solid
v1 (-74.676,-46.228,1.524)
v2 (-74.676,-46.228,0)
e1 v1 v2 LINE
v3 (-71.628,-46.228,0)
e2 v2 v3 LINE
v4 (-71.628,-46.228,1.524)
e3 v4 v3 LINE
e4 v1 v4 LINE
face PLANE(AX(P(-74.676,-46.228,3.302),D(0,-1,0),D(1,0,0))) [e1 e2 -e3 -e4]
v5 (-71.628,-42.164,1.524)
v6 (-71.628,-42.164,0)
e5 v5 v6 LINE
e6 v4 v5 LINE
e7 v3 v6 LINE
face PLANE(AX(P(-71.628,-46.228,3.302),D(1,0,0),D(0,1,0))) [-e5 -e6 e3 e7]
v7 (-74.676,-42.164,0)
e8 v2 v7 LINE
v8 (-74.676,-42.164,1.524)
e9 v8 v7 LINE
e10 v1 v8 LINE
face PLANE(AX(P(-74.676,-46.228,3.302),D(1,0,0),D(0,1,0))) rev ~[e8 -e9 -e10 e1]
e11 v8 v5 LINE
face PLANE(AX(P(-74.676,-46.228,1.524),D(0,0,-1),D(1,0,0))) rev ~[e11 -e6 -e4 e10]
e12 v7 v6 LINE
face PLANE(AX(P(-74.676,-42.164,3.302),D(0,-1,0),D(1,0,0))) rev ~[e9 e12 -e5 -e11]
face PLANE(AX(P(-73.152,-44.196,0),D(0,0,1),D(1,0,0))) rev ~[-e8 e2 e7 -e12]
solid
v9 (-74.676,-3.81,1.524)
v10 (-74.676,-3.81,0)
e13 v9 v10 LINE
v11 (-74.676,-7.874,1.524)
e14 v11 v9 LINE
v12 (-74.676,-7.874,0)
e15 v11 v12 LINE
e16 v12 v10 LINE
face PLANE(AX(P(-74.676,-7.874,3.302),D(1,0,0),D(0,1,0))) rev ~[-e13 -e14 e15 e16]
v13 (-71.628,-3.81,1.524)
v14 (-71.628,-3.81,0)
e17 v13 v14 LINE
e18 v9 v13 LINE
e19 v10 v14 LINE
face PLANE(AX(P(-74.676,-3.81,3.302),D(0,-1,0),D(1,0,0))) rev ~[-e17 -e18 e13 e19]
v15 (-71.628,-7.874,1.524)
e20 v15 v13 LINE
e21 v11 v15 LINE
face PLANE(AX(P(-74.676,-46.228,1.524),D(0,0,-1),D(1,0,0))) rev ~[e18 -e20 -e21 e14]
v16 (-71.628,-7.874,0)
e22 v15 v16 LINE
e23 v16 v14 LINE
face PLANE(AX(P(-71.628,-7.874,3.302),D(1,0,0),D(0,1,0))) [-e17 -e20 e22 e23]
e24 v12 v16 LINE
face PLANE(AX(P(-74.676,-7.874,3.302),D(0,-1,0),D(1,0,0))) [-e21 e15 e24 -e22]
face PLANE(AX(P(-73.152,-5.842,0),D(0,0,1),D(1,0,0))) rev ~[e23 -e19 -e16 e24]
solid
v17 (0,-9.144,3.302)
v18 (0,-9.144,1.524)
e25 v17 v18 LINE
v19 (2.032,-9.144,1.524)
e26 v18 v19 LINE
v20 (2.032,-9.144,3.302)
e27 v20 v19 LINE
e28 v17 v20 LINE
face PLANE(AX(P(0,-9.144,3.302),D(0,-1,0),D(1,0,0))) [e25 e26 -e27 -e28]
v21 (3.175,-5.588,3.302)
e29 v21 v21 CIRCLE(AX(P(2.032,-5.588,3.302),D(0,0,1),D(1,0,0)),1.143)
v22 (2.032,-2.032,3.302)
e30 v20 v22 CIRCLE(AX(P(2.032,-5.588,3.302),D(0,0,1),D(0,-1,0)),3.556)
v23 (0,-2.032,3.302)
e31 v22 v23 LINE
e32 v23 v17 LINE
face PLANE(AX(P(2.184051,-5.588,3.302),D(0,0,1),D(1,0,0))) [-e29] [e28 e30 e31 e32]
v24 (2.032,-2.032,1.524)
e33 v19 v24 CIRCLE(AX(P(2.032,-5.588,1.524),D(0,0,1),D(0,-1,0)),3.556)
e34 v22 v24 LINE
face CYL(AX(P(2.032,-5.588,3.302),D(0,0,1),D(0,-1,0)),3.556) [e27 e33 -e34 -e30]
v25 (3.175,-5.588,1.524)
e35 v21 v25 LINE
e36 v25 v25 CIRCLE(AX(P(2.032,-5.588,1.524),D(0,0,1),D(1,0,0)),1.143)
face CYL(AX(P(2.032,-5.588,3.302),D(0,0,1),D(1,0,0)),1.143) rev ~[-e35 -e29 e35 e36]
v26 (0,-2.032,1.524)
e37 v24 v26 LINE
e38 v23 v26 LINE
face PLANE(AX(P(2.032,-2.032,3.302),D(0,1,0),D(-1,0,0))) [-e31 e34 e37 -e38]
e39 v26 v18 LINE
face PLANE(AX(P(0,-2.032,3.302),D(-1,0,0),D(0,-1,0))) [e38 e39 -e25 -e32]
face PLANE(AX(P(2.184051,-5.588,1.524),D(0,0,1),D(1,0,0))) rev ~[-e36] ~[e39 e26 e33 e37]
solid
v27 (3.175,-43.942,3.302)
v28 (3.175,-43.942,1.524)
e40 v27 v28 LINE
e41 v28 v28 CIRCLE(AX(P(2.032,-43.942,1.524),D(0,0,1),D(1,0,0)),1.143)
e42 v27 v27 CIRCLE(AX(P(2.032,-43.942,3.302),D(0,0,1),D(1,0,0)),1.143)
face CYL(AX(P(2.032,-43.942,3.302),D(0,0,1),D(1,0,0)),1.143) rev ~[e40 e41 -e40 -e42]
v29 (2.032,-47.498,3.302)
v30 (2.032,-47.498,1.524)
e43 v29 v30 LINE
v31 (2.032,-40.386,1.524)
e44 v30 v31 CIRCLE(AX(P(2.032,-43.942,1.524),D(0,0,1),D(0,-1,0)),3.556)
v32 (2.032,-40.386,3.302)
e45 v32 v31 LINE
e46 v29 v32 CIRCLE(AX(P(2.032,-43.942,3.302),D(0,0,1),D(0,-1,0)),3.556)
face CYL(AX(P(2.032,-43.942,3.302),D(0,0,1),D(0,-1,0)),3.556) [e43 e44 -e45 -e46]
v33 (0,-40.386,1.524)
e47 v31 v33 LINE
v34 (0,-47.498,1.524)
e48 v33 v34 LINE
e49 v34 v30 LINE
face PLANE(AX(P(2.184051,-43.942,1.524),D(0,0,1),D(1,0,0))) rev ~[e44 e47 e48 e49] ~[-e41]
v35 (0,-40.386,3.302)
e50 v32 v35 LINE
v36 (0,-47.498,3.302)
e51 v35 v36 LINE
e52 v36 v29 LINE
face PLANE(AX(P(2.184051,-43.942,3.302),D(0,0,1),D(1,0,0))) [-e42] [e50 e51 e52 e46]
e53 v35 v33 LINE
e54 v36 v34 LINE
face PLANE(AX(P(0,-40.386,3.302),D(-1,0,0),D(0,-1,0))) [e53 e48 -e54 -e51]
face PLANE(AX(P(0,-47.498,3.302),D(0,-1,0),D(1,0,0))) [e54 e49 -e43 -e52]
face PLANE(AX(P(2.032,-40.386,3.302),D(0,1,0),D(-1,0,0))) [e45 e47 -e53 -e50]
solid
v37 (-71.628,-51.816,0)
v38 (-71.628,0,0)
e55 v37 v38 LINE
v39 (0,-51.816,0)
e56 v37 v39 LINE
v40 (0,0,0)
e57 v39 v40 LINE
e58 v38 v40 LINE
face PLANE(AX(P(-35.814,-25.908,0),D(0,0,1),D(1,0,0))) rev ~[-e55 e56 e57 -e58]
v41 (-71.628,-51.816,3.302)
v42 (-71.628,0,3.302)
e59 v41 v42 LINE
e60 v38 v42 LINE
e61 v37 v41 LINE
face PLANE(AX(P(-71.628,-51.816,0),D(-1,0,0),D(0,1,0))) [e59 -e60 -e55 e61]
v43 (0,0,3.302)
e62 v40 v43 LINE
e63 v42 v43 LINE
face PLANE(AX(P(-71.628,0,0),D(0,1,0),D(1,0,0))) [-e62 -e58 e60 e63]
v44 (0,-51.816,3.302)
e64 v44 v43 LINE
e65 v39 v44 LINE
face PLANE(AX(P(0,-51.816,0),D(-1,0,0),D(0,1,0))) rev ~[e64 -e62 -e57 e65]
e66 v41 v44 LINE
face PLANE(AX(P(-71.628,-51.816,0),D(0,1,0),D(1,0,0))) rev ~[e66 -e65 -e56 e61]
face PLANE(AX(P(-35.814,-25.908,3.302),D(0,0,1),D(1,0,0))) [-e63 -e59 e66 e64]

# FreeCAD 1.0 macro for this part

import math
import FreeCAD as App
import Part
import Sketcher
Q = App.Units.Quantity


def add_polygon(sketch, points):
    """Adds a closed chain of lines whose ends are joined by coincident constraints."""
    first, n = sketch.GeometryCount, len(points)
    for a, b in zip(points, points[1:] + points[:1]):
        sketch.addGeometry(Part.LineSegment(App.Vector(*a, 0), App.Vector(*b, 0)), False)
    for i in range(n):
        sketch.addConstraint(Sketcher.Constraint("Coincident", first + i, 2, first + (i + 1) % n, 1))

doc = App.newDocument("Part")
body = doc.addObject("PartDesign::Body", "Body")

# Sketch on XY plane
sketch1 = body.newObject("Sketcher::SketchObject", "Sketch")
sketch1.AttachmentSupport = (doc.getObject("XY_Plane"), [""])
sketch1.MapMode = "FlatFace"
add_polygon(sketch1, [(-72, 0), (-72, -52), (0, -52), (0, 0)])  # lines 0-3
sketch1.addConstraint([
    Sketcher.Constraint("Vertical", 0),
    Sketcher.Constraint("Horizontal", 1),
    Sketcher.Constraint("Vertical", 2),
    Sketcher.Constraint("Horizontal", 3),
    Sketcher.Constraint("Coincident", 2, 2, -1, 1),
    Sketcher.Constraint("DistanceX", 1, 1, 1, 2, Q("2.82 in")),
    Sketcher.Constraint("DistanceY", 0, 2, 0, 1, Q("2.04 in")),
])
pad1 = body.newObject("PartDesign::Pad", "Pad")
pad1.Profile = sketch1
pad1.Length = Q("0.13 in")
body2 = doc.addObject("PartDesign::Body", "Body001")
body2.AllowCompound = True

# Sketch on XY plane
sketch2 = body2.newObject("Sketcher::SketchObject", "Sketch001")
sketch2.AttachmentSupport = (doc.getObject("XY_Plane001"), [""])
sketch2.MapMode = "FlatFace"
sketch2.AttachmentOffset = App.Placement(App.Vector(0, 0, 0.13 * 25.4), App.Rotation())
sketch2.addGeometry([
    Part.LineSegment(App.Vector(2, -2, 0), App.Vector(0, -2, 0)),  # 0
    Part.LineSegment(App.Vector(0, -2, 0), App.Vector(0, -9.1, 0)),  # 1
    Part.LineSegment(App.Vector(0, -9.1, 0), App.Vector(2, -9.1, 0)),  # 2
    Part.ArcOfCircle(Part.Circle(App.Vector(2, -5.6, 0), App.Vector(0, 0, 1), 3.6), math.radians(-90), math.radians(90)),  # 3
    Part.Circle(App.Vector(2, -5.6, 0), App.Vector(0, 0, 1), 1.1),  # 4
    Part.ArcOfCircle(Part.Circle(App.Vector(2, -43.9, 0), App.Vector(0, 0, 1), 3.6), math.radians(-90), math.radians(90)),  # 5
    Part.LineSegment(App.Vector(2, -40.4, 0), App.Vector(0, -40.4, 0)),  # 6
    Part.LineSegment(App.Vector(0, -40.4, 0), App.Vector(0, -47.5, 0)),  # 7
    Part.LineSegment(App.Vector(0, -47.5, 0), App.Vector(2, -47.5, 0)),  # 8
    Part.Circle(App.Vector(2, -43.9, 0), App.Vector(0, 0, 1), 1.1),  # 9
], False)
sketch2.addConstraint([
    Sketcher.Constraint("Coincident", 0, 2, 1, 1),
    Sketcher.Constraint("Coincident", 1, 2, 2, 1),
    Sketcher.Constraint("Tangent", 2, 2, 3, 1),
    Sketcher.Constraint("Tangent", 3, 2, 0, 1),
    Sketcher.Constraint("Tangent", 5, 2, 6, 1),
    Sketcher.Constraint("Coincident", 6, 2, 7, 1),
    Sketcher.Constraint("Coincident", 7, 2, 8, 1),
    Sketcher.Constraint("Tangent", 8, 2, 5, 1),
    Sketcher.Constraint("Horizontal", 0),
    Sketcher.Constraint("Vertical", 1),
    Sketcher.Constraint("Horizontal", 2),
    Sketcher.Constraint("Horizontal", 6),
    Sketcher.Constraint("Vertical", 7),
    Sketcher.Constraint("Horizontal", 8),
    Sketcher.Constraint("Coincident", 4, 3, 3, 3),
    Sketcher.Constraint("Coincident", 9, 3, 5, 3),
    Sketcher.Constraint("Equal", 3, 5),
    Sketcher.Constraint("Equal", 4, 9),
    Sketcher.Constraint("PointOnObject", 0, 2, -2),
    Sketcher.Constraint("PointOnObject", 6, 2, -2),
    Sketcher.Constraint("Vertical", 4, 3, 5, 3),
    Sketcher.Constraint("Diameter", 4, Q("0.09 in")),
    Sketcher.Constraint("Radius", 3, Q("0.14 in")),
    Sketcher.Constraint("DistanceX", 0, 2, 0, 1, Q("0.08 in")),
    Sketcher.Constraint("DistanceY", 3, 3, -1, 1, Q("0.22 in")),
    Sketcher.Constraint("DistanceY", 5, 3, -1, 1, Q("1.73 in")),
])
pad2 = body2.newObject("PartDesign::Pad", "Pad001")
pad2.Profile = sketch2
pad2.Length = Q("0.07 in")
pad2.Reversed = True
body3 = doc.addObject("PartDesign::Body", "Body002")
body3.AllowCompound = True

# Sketch on XY plane
sketch3 = body3.newObject("Sketcher::SketchObject", "Sketch002")
sketch3.AttachmentSupport = (doc.getObject("XY_Plane002"), [""])
sketch3.MapMode = "FlatFace"
sketch3.AttachmentOffset = App.Placement(App.Vector(0, 0, 0.13 * 25.4), App.Rotation())
add_polygon(sketch3, [(-74.7, -3.8), (-74.7, -7.9), (-71.6, -7.9), (-71.6, -3.8)])  # lines 0-3
add_polygon(sketch3, [(-74.7, -42.2), (-74.7, -46.2), (-71.6, -46.2), (-71.6, -42.2)])  # lines 4-7
sketch3.addConstraint([
    Sketcher.Constraint("Vertical", 0),
    Sketcher.Constraint("Horizontal", 1),
    Sketcher.Constraint("Vertical", 2),
    Sketcher.Constraint("Horizontal", 3),
    Sketcher.Constraint("Vertical", 4),
    Sketcher.Constraint("Horizontal", 5),
    Sketcher.Constraint("Vertical", 6),
    Sketcher.Constraint("Horizontal", 7),
    Sketcher.Constraint("Vertical", 3, 2, 4, 2),
    Sketcher.Constraint("Vertical", 2, 2, 5, 2),
    Sketcher.Constraint("Equal", 2, 4),
    Sketcher.Constraint("DistanceX", 1, 1, 1, 2, Q("0.12 in")),
    Sketcher.Constraint("DistanceY", 0, 2, 0, 1, Q("0.16 in")),
    Sketcher.Constraint("DistanceX", 0, 2, -1, 1, Q("2.94 in")),
    Sketcher.Constraint("DistanceY", 0, 2, -1, 1, Q("0.31 in")),
    Sketcher.Constraint("DistanceY", 4, 2, -1, 1, Q("1.82 in")),
])
pad3 = body3.newObject("PartDesign::Pad", "Pad002")
pad3.Profile = sketch3
pad3.Length = Q("0.13 in")
pad3.Reversed = True

# Sketch on XZ plane
sketch4 = body3.newObject("Sketcher::SketchObject", "Sketch003")
sketch4.AttachmentSupport = (doc.getObject("XZ_Plane002"), [""])
sketch4.MapMode = "FlatFace"
sketch4.AttachmentOffset = App.Placement(App.Vector(0, 0, 1.82 * 25.4), App.Rotation())
add_polygon(sketch4, [(-74.7, 3.3), (-74.7, 1.5), (-71.6, 1.5), (-71.6, 3.3)])  # lines 0-3
sketch4.addConstraint([
    Sketcher.Constraint("Vertical", 0),
    Sketcher.Constraint("Horizontal", 1),
    Sketcher.Constraint("Vertical", 2),
    Sketcher.Constraint("Horizontal", 3),
    Sketcher.Constraint("DistanceX", 1, 1, 1, 2, Q("0.12 in")),
    Sketcher.Constraint("DistanceY", 0, 2, 0, 1, Q("0.07 in")),
    Sketcher.Constraint("DistanceX", 0, 2, -1, 1, Q("2.94 in")),
    Sketcher.Constraint("DistanceY", -1, 1, 0, 2, Q("0.06 in")),
])
pocket1 = body3.newObject("PartDesign::Pocket", "Pocket")
pocket1.Profile = sketch4
pocket1.Length = Q("4 in")

doc.recompute()
